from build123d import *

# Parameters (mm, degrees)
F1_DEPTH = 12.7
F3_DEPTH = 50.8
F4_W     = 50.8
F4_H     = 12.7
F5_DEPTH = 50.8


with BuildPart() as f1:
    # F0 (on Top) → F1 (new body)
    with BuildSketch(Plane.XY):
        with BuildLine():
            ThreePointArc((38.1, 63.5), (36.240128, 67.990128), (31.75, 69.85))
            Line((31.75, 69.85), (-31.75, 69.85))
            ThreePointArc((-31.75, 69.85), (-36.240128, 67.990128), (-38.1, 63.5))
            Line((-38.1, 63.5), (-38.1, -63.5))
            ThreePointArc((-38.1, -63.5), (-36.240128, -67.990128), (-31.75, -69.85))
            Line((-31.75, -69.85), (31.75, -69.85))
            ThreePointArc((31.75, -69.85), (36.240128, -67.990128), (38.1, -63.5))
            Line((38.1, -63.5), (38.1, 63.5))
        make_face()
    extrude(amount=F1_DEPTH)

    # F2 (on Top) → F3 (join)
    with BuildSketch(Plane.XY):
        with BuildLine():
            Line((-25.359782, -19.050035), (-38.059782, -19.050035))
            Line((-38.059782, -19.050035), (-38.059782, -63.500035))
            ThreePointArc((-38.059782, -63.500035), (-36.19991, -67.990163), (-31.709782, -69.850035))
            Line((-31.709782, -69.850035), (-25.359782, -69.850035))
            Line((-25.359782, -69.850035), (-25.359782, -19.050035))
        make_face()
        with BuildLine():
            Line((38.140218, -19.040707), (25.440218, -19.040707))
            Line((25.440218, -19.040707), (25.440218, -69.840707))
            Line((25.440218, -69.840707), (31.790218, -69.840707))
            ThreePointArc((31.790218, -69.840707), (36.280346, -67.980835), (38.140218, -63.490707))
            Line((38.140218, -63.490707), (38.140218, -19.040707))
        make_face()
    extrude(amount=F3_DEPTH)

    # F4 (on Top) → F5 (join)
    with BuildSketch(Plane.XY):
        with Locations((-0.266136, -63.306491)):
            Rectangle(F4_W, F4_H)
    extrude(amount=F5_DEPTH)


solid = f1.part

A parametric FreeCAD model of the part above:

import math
import FreeCAD as App
import Part
import Sketcher
Q = App.Units.Quantity

doc = App.newDocument("Part")
params = doc.addObject("Spreadsheet::Sheet", "Params")
for row, (alias, value) in enumerate([
    ("sketch1_height", "5 in"),
    ("sketch1_radius", "0.25 in"),
    ("sketch1_width", "2.5 in"),
    ("pad1_length", "0.5 in"),
    ("sketch2_height", "2 in"),
    ("sketch2_radius", "0.25 in"),
    ("sketch2_width", "0.5 in"),
    ("pad2_length", "2 in"),
    ("sketch3_width", "2 in"),
    ("sketch3_height", "0.5 in"),
    ("pad3_length", "2 in"),
], start=1):
    params.set(f"A{row}", alias)
    params.set(f"B{row}", "=" + value)
    params.setAlias(f"B{row}", alias)

body = doc.addObject("PartDesign::Body", "Body")

# Sketch on XY plane
sketch1 = body.newObject("Sketcher::SketchObject", "Sketch")
sketch1.AttachmentSupport = (doc.getObject("XY_Plane"), [""])
sketch1.MapMode = "FlatFace"
sketch1.addGeometry(Part.ArcOfCircle(Part.Circle(App.Vector(32, 63, 0), App.Vector(0, 0, 1), 6), math.radians(0), math.radians(90)), False)
sketch1.addGeometry(Part.LineSegment(App.Vector(32, 70, 0), App.Vector(-32, 70, 0)), False)
sketch1.addGeometry(Part.ArcOfCircle(Part.Circle(App.Vector(-32, 63, 0), App.Vector(0, 0, 1), 6), math.radians(90), math.radians(180)), False)
sketch1.addGeometry(Part.LineSegment(App.Vector(-38, 64, 0), App.Vector(-38, -64, 0)), False)
sketch1.addGeometry(Part.ArcOfCircle(Part.Circle(App.Vector(-32, -63, 0), App.Vector(0, 0, 1), 6), math.radians(-180), math.radians(-90)), False)
sketch1.addGeometry(Part.LineSegment(App.Vector(-32, -70, 0), App.Vector(32, -70, 0)), False)
sketch1.addGeometry(Part.ArcOfCircle(Part.Circle(App.Vector(32, -63, 0), App.Vector(0, 0, 1), 6), math.radians(-90), math.radians(0)), False)
sketch1.addGeometry(Part.LineSegment(App.Vector(38, -64, 0), App.Vector(38, 64, 0)), False)
sketch1.addConstraint(Sketcher.Constraint("Tangent", 0, 2, 1, 1))
sketch1.addConstraint(Sketcher.Constraint("Tangent", 1, 2, 2, 1))
sketch1.addConstraint(Sketcher.Constraint("Tangent", 2, 2, 3, 1))
sketch1.addConstraint(Sketcher.Constraint("Tangent", 3, 2, 4, 1))
sketch1.addConstraint(Sketcher.Constraint("Tangent", 4, 2, 5, 1))
sketch1.addConstraint(Sketcher.Constraint("Tangent", 5, 2, 6, 1))
sketch1.addConstraint(Sketcher.Constraint("Tangent", 6, 2, 7, 1))
sketch1.addConstraint(Sketcher.Constraint("Tangent", 7, 2, 0, 1))
sketch1.addConstraint(Sketcher.Constraint("Horizontal", 1))
sketch1.addConstraint(Sketcher.Constraint("Vertical", 3))
sketch1.addConstraint(Sketcher.Constraint("Horizontal", 5))
sketch1.addConstraint(Sketcher.Constraint("Vertical", 7))
sketch1.addConstraint(Sketcher.Constraint("Equal", 0, 2))
sketch1.addConstraint(Sketcher.Constraint("Equal", 2, 4))
sketch1.addConstraint(Sketcher.Constraint("Equal", 4, 6))
sketch1.addConstraint(Sketcher.Constraint("Symmetric", 0, 3, 4, 3, -1, 1))
sketch1.addConstraint(Sketcher.Constraint("DistanceY", 3, 2, 3, 1, Q("5 in")))
sketch1.addConstraint(Sketcher.Constraint("Radius", 0, Q("0.25 in")))
sketch1.addConstraint(Sketcher.Constraint("DistanceX", 1, 2, 1, 1, Q("2.5 in")))
sketch1.setExpression("Constraints[16]", "Params.sketch1_height")
sketch1.setExpression("Constraints[17]", "Params.sketch1_radius")
sketch1.setExpression("Constraints[18]", "Params.sketch1_width")
pad1 = body.newObject("PartDesign::Pad", "Pad")
pad1.Profile = sketch1
pad1.setExpression("Length", "Params.pad1_length")

# Sketch on XY plane
sketch2 = body.newObject("Sketcher::SketchObject", "Sketch001")
sketch2.AttachmentSupport = (doc.getObject("XY_Plane"), [""])
sketch2.MapMode = "FlatFace"
sketch2.addGeometry(Part.LineSegment(App.Vector(-25, -19, 0), App.Vector(-38, -19, 0)), False)
sketch2.addGeometry(Part.LineSegment(App.Vector(-38, -19, 0), App.Vector(-38, -64, 0)), False)
sketch2.addGeometry(Part.ArcOfCircle(Part.Circle(App.Vector(-32, -64, 0), App.Vector(0, 0, 1), 6), math.radians(-180), math.radians(-90)), False)
sketch2.addGeometry(Part.LineSegment(App.Vector(-32, -70, 0), App.Vector(-25, -70, 0)), False)
sketch2.addGeometry(Part.LineSegment(App.Vector(-25, -70, 0), App.Vector(-25, -19, 0)), False)
sketch2.addGeometry(Part.LineSegment(App.Vector(38, -19, 0), App.Vector(25, -19, 0)), False)
sketch2.addGeometry(Part.LineSegment(App.Vector(25, -19, 0), App.Vector(25, -70, 0)), False)
sketch2.addGeometry(Part.LineSegment(App.Vector(25, -70, 0), App.Vector(32, -70, 0)), False)
sketch2.addGeometry(Part.ArcOfCircle(Part.Circle(App.Vector(32, -63, 0), App.Vector(0, 0, 1), 6), math.radians(-90), math.radians(0)), False)
sketch2.addGeometry(Part.LineSegment(App.Vector(38, -63, 0), App.Vector(38, -19, 0)), False)
sketch2.addConstraint(Sketcher.Constraint("Coincident", 0, 2, 1, 1))
sketch2.addConstraint(Sketcher.Constraint("Tangent", 1, 2, 2, 1))
sketch2.addConstraint(Sketcher.Constraint("Tangent", 2, 2, 3, 1))
sketch2.addConstraint(Sketcher.Constraint("Coincident", 3, 2, 4, 1))
sketch2.addConstraint(Sketcher.Constraint("Coincident", 4, 2, 0, 1))
sketch2.addConstraint(Sketcher.Constraint("Coincident", 5, 2, 6, 1))
sketch2.addConstraint(Sketcher.Constraint("Coincident", 6, 2, 7, 1))
sketch2.addConstraint(Sketcher.Constraint("Tangent", 7, 2, 8, 1))
sketch2.addConstraint(Sketcher.Constraint("Tangent", 8, 2, 9, 1))
sketch2.addConstraint(Sketcher.Constraint("Coincident", 9, 2, 5, 1))
sketch2.addConstraint(Sketcher.Constraint("Horizontal", 0))
sketch2.addConstraint(Sketcher.Constraint("Vertical", 1))
sketch2.addConstraint(Sketcher.Constraint("Horizontal", 3))
sketch2.addConstraint(Sketcher.Constraint("Vertical", 4))
sketch2.addConstraint(Sketcher.Constraint("Horizontal", 5))
sketch2.addConstraint(Sketcher.Constraint("Vertical", 6))
sketch2.addConstraint(Sketcher.Constraint("Horizontal", 7))
sketch2.addConstraint(Sketcher.Constraint("Vertical", 9))
sketch2.addConstraint(Sketcher.Constraint("Equal", 2, 8))
sketch2.addConstraint(Sketcher.Constraint("Equal", 0, 5))
sketch2.addConstraint(Sketcher.Constraint("Equal", 4, 6))
sketch2.addConstraint(Sketcher.Constraint("DistanceY", 4, 1, 4, 2, Q("2 in")))
sketch2.addConstraint(Sketcher.Constraint("Radius", 2, Q("0.25 in")))
sketch2.addConstraint(Sketcher.Constraint("DistanceX", 0, 2, 0, 1, Q("0.5 in")))
sketch2.addConstraint(Sketcher.Constraint("DistanceX", 4, 2, 5, 2, Q("2 in")))
sketch2.addConstraint(Sketcher.Constraint("DistanceX", 2, 3, -1, 1, Q("31.709782 mm")))
sketch2.addConstraint(Sketcher.Constraint("DistanceY", 8, 3, 0, 2, Q("44.440672 mm")))
sketch2.addConstraint(Sketcher.Constraint("DistanceY", 2, 3, -1, 1, Q("63.500035 mm")))
sketch2.setExpression("Constraints[21]", "Params.sketch2_height")
sketch2.setExpression("Constraints[22]", "Params.sketch2_radius")
sketch2.setExpression("Constraints[23]", "Params.sketch2_width")
pad2 = body.newObject("PartDesign::Pad", "Pad001")
pad2.Profile = sketch2
pad2.setExpression("Length", "Params.pad2_length")

# Sketch on XY plane
sketch3 = body.newObject("Sketcher::SketchObject", "Sketch002")
sketch3.AttachmentSupport = (doc.getObject("XY_Plane"), [""])
sketch3.MapMode = "FlatFace"
sketch3.addGeometry(Part.LineSegment(App.Vector(-26, -57, 0), App.Vector(-26, -70, 0)), False)
sketch3.addGeometry(Part.LineSegment(App.Vector(-26, -70, 0), App.Vector(25, -70, 0)), False)
sketch3.addGeometry(Part.LineSegment(App.Vector(25, -70, 0), App.Vector(25, -57, 0)), False)
sketch3.addGeometry(Part.LineSegment(App.Vector(25, -57, 0), App.Vector(-26, -57, 0)), False)
sketch3.addConstraint(Sketcher.Constraint("Coincident", 0, 2, 1, 1))
sketch3.addConstraint(Sketcher.Constraint("Coincident", 1, 2, 2, 1))
sketch3.addConstraint(Sketcher.Constraint("Coincident", 2, 2, 3, 1))
sketch3.addConstraint(Sketcher.Constraint("Coincident", 3, 2, 0, 1))
sketch3.addConstraint(Sketcher.Constraint("Vertical", 0))
sketch3.addConstraint(Sketcher.Constraint("Horizontal", 1))
sketch3.addConstraint(Sketcher.Constraint("Vertical", 2))
sketch3.addConstraint(Sketcher.Constraint("Horizontal", 3))
sketch3.addConstraint(Sketcher.Constraint("DistanceX", 1, 1, 1, 2, Q("2 in")))
sketch3.addConstraint(Sketcher.Constraint("DistanceY", 0, 2, 0, 1, Q("0.5 in")))
sketch3.addConstraint(Sketcher.Constraint("DistanceY", 0, 2, -1, 1, Q("69.656491 mm")))
sketch3.addConstraint(Sketcher.Constraint("DistanceX", 0, 2, -1, 1, Q("25.666136 mm")))
sketch3.setExpression("Constraints[8]", "Params.sketch3_width")
sketch3.setExpression("Constraints[9]", "Params.sketch3_height")
pad3 = body.newObject("PartDesign::Pad", "Pad002")
pad3.Profile = sketch3
pad3.setExpression("Length", "Params.pad3_length")

doc.recompute()
